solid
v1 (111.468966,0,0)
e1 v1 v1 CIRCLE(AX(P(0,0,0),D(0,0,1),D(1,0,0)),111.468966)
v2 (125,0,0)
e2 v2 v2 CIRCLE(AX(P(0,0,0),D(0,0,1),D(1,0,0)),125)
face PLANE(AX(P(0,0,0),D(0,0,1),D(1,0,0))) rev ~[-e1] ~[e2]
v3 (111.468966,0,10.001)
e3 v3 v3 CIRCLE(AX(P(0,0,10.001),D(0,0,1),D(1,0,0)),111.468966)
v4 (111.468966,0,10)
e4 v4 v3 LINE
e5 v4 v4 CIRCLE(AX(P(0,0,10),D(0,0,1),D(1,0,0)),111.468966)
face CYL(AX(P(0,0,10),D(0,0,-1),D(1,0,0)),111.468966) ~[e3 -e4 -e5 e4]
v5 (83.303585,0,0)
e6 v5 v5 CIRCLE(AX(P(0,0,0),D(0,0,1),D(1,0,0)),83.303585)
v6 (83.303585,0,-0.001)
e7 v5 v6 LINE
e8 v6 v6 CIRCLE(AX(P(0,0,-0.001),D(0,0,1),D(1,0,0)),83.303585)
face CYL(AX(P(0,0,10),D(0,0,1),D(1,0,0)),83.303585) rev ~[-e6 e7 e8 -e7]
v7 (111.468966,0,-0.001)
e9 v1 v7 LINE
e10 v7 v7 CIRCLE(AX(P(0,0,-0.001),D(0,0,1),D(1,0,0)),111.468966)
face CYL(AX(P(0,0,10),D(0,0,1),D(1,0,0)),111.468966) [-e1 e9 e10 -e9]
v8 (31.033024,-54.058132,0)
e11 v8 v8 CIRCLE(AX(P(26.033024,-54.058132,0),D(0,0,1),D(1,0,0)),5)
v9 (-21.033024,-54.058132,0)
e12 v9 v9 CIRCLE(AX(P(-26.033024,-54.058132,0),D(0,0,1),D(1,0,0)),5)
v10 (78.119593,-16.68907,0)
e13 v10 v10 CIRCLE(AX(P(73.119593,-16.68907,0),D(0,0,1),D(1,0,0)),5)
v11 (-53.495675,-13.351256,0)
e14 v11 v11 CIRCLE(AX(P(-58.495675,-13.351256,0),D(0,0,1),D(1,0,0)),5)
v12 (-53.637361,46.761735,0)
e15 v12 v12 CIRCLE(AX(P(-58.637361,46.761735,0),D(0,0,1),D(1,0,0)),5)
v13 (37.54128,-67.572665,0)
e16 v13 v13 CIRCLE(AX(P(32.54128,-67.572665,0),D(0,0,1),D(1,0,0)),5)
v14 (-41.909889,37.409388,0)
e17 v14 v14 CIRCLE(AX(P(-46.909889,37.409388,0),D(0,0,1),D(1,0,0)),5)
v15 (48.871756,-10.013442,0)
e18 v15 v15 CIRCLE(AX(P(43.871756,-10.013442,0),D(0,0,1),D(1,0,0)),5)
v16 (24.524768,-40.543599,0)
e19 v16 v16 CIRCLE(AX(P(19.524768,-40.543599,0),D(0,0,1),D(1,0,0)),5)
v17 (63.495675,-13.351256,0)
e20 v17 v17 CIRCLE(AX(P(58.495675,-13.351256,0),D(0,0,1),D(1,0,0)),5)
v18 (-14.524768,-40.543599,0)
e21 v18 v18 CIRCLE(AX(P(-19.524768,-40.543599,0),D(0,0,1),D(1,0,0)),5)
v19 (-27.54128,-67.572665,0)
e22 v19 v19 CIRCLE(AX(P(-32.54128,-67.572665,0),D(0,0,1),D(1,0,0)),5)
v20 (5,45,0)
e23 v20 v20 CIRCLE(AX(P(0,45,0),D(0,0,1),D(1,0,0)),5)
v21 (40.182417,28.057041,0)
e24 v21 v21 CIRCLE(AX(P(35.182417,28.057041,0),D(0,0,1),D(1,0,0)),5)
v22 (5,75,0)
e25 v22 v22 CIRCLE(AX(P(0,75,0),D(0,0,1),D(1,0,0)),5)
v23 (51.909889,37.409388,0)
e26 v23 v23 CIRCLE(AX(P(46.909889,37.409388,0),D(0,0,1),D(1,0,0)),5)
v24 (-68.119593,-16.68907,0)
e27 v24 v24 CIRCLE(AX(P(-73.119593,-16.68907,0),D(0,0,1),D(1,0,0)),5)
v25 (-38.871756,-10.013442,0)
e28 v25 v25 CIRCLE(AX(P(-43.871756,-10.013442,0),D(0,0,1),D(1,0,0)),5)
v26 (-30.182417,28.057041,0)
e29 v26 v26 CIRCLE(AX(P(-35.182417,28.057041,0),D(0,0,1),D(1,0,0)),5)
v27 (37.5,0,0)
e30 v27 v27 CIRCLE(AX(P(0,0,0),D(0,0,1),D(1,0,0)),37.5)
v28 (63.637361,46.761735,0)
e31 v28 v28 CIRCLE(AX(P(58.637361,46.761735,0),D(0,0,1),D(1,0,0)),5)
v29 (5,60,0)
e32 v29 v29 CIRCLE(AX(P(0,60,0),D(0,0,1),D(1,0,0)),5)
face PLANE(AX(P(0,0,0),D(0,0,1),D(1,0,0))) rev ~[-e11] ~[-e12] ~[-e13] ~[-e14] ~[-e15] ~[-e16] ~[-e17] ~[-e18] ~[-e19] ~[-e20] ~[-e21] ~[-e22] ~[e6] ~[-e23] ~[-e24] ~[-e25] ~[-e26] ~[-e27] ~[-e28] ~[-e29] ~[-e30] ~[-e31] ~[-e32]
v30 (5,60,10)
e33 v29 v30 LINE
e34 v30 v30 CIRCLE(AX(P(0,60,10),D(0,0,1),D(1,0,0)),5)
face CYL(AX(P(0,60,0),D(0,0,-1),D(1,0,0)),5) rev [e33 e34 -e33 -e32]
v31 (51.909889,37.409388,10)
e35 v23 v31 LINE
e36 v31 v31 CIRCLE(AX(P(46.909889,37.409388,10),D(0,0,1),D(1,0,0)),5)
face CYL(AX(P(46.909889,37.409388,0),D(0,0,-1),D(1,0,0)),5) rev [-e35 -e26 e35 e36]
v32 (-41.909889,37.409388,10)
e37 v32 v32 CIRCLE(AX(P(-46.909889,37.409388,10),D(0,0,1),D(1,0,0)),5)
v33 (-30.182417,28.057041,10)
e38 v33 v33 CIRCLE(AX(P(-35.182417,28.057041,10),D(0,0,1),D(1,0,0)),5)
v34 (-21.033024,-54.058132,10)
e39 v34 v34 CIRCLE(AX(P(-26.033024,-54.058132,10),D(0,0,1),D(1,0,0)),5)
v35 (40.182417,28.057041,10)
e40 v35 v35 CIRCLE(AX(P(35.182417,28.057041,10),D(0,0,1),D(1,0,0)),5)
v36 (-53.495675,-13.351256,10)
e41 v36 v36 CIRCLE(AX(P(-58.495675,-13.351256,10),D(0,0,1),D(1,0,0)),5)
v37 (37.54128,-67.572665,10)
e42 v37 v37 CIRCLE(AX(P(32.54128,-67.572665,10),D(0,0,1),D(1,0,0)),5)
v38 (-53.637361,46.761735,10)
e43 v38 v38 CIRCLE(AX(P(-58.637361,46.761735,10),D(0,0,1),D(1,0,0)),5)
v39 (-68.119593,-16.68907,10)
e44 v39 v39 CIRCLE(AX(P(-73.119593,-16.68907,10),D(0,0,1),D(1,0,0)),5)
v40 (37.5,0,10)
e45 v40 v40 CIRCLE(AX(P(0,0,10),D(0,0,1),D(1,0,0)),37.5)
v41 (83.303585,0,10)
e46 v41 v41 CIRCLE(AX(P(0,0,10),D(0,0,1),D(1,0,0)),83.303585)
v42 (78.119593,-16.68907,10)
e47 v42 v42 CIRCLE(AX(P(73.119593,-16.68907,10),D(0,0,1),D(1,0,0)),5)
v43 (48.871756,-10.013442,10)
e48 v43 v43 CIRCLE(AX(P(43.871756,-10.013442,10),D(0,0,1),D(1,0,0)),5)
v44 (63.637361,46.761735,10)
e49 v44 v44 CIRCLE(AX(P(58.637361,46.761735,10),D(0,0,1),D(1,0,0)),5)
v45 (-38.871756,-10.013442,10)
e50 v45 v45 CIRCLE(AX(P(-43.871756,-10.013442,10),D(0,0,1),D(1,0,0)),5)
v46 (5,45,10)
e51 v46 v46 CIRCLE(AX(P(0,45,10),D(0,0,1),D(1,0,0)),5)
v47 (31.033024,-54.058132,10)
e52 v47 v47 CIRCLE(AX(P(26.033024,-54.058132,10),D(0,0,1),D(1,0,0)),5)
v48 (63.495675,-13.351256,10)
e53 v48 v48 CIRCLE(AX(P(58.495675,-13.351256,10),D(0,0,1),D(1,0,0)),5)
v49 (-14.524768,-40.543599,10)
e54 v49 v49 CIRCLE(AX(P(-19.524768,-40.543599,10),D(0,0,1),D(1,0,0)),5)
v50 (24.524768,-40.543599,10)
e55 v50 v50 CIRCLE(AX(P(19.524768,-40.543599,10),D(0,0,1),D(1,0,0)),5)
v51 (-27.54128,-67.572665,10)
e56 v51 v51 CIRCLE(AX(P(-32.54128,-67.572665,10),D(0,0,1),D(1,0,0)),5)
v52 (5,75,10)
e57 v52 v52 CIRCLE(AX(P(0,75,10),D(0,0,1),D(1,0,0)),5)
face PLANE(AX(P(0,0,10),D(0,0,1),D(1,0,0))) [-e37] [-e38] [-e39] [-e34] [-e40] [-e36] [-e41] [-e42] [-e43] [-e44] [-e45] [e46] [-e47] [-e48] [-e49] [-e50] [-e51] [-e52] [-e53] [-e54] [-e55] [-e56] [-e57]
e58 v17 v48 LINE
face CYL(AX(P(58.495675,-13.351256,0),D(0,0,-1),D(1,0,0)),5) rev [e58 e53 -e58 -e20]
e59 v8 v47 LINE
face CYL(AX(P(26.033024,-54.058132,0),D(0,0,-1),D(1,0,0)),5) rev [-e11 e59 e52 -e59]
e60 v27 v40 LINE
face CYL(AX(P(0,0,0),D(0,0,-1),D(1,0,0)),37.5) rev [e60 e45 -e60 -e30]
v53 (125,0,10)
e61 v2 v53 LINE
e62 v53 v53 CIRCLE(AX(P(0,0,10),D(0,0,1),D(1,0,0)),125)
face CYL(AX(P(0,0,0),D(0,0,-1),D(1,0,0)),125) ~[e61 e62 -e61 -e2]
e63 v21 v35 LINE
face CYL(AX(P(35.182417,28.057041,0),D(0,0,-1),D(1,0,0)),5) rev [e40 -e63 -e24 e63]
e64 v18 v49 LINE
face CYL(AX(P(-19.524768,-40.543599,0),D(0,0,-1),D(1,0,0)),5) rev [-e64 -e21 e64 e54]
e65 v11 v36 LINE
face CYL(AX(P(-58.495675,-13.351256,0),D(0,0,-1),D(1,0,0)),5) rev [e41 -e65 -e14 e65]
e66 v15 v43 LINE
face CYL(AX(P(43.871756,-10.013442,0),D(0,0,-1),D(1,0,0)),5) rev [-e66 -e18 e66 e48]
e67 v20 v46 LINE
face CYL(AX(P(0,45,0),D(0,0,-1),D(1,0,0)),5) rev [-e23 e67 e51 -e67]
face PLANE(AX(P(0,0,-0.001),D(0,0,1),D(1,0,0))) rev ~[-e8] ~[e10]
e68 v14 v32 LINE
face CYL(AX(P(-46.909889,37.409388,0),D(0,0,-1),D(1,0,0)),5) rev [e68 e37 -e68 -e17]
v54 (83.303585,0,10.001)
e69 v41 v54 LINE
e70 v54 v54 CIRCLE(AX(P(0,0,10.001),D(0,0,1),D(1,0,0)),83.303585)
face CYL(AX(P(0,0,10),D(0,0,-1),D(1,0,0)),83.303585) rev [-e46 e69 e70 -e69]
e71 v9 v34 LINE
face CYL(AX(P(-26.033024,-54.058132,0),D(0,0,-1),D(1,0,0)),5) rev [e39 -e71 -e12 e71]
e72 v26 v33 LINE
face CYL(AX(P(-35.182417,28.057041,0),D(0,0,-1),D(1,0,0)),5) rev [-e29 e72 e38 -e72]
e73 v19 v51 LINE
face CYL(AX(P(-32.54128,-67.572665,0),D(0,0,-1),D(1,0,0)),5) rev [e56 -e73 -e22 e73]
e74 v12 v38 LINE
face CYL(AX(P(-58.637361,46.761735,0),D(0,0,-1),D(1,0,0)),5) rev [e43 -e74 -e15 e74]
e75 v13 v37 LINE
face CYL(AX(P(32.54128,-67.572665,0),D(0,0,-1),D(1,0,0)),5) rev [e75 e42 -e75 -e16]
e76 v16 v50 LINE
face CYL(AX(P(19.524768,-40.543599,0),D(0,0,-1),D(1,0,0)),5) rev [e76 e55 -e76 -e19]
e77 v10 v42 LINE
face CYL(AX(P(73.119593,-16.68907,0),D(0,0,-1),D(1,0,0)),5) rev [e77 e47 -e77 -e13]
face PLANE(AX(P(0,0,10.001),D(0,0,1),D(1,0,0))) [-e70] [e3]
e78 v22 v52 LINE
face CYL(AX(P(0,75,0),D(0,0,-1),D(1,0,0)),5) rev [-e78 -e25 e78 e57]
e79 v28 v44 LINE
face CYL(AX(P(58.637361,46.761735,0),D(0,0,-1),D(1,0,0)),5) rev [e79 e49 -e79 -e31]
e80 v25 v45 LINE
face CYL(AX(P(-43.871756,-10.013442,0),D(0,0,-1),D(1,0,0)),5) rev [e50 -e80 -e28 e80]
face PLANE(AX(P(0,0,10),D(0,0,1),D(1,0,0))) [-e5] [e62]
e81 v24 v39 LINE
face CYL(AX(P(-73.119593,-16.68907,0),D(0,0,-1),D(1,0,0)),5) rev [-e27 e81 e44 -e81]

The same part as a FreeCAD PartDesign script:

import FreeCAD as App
import Part
import Sketcher

doc = App.newDocument("Part")
params = doc.addObject("Spreadsheet::Sheet", "Params")
for row, (alias, value) in enumerate([
    ("sketch1_diameter", "250 mm"),
    ("sketch1_diameter2", "10 mm"),
    ("sketch1_diameter3", "75 mm"),
    ("pad1_length", "10 mm"),
    ("pad2_length", "10.001 mm"),
    ("pad3_length", "0.001 mm"),
], start=1):
    params.set(f"A{row}", alias)
    params.set(f"B{row}", "=" + value)
    params.setAlias(f"B{row}", alias)

body = doc.addObject("PartDesign::Body", "Body")

# Sketch on XY plane
sketch1 = body.newObject("Sketcher::SketchObject", "Sketch")
sketch1.AttachmentSupport = (doc.getObject("XY_Plane"), [""])
sketch1.MapMode = "FlatFace"
sketch1.addGeometry(Part.Circle(App.Vector(0, 0, 0), App.Vector(0, 0, 1), 125), False)
sketch1.addGeometry(Part.Circle(App.Vector(-46, -95, 0), App.Vector(0, 0, 1), 5), False)
sketch1.addGeometry(Part.Circle(App.Vector(-39, -81, 0), App.Vector(0, 0, 1), 5), False)
sketch1.addGeometry(Part.Circle(App.Vector(-33, -68, 0), App.Vector(0, 0, 1), 5), False)
sketch1.addGeometry(Part.Circle(App.Vector(-26, -54, 0), App.Vector(0, 0, 1), 5), False)
sketch1.addGeometry(Part.Circle(App.Vector(-102, -23, 0), App.Vector(0, 0, 1), 5), False)
sketch1.addGeometry(Part.Circle(App.Vector(-88, -20, 0), App.Vector(0, 0, 1), 5), False)
sketch1.addGeometry(Part.Circle(App.Vector(-73, -17, 0), App.Vector(0, 0, 1), 5), False)
sketch1.addGeometry(Part.Circle(App.Vector(-58, -13, 0), App.Vector(0, 0, 1), 5), False)
sketch1.addGeometry(Part.Circle(App.Vector(-20, -41, 0), App.Vector(0, 0, 1), 5), False)
sketch1.addGeometry(Part.Circle(App.Vector(-44, -10, 0), App.Vector(0, 0, 1), 5), False)
sketch1.addGeometry(Part.Circle(App.Vector(46, -95, 0), App.Vector(0, 0, 1), 5), False)
sketch1.addGeometry(Part.Circle(App.Vector(39, -81, 0), App.Vector(0, 0, 1), 5), False)
sketch1.addGeometry(Part.Circle(App.Vector(26, -54, 0), App.Vector(0, 0, 1), 5), False)
sketch1.addGeometry(Part.Circle(App.Vector(33, -68, 0), App.Vector(0, 0, 1), 5), False)
sketch1.addGeometry(Part.Circle(App.Vector(20, -41, 0), App.Vector(0, 0, 1), 5), False)
sketch1.addGeometry(Part.Circle(App.Vector(0, 0, 0), App.Vector(0, 0, 1), 38), False)
sketch1.addGeometry(Part.Circle(App.Vector(44, -10, 0), App.Vector(0, 0, 1), 5), False)
sketch1.addGeometry(Part.Circle(App.Vector(102, -23, 0), App.Vector(0, 0, 1), 5), False)
sketch1.addGeometry(Part.Circle(App.Vector(58, -13, 0), App.Vector(0, 0, 1), 5), False)
sketch1.addGeometry(Part.Circle(App.Vector(73, -17, 0), App.Vector(0, 0, 1), 5), False)
sketch1.addGeometry(Part.Circle(App.Vector(88, -20, 0), App.Vector(0, 0, 1), 5), False)
sketch1.addGeometry(Part.Circle(App.Vector(-70, 56, 0), App.Vector(0, 0, 1), 5), False)
sketch1.addGeometry(Part.Circle(App.Vector(-59, 47, 0), App.Vector(0, 0, 1), 5), False)
sketch1.addGeometry(Part.Circle(App.Vector(-35, 28, 0), App.Vector(0, 0, 1), 5), False)
sketch1.addGeometry(Part.Circle(App.Vector(-47, 37, 0), App.Vector(0, 0, 1), 5), False)
sketch1.addGeometry(Part.Circle(App.Vector(-82, 65, 0), App.Vector(0, 0, 1), 5), False)
sketch1.addGeometry(Part.Circle(App.Vector(35, 28, 0), App.Vector(0, 0, 1), 5), False)
sketch1.addGeometry(Part.Circle(App.Vector(0, 45, 0), App.Vector(0, 0, 1), 5), False)
sketch1.addGeometry(Part.Circle(App.Vector(47, 37, 0), App.Vector(0, 0, 1), 5), False)
sketch1.addGeometry(Part.Circle(App.Vector(59, 47, 0), App.Vector(0, 0, 1), 5), False)
sketch1.addGeometry(Part.Circle(App.Vector(70, 56, 0), App.Vector(0, 0, 1), 5), False)
sketch1.addGeometry(Part.Circle(App.Vector(0, 60, 0), App.Vector(0, 0, 1), 5), False)
sketch1.addGeometry(Part.Circle(App.Vector(0, 75, 0), App.Vector(0, 0, 1), 5), False)
sketch1.addGeometry(Part.Circle(App.Vector(0, 90, 0), App.Vector(0, 0, 1), 5), False)
sketch1.addGeometry(Part.Circle(App.Vector(0, 105, 0), App.Vector(0, 0, 1), 5), False)
sketch1.addGeometry(Part.Circle(App.Vector(82, 65, 0), App.Vector(0, 0, 1), 5), False)
sketch1.addConstraint(Sketcher.Constraint("Coincident", 0, 3, -1, 1))
sketch1.addConstraint(Sketcher.Constraint("Coincident", 16, 3, -1, 1))
sketch1.addConstraint(Sketcher.Constraint("Equal", 1, 2))
sketch1.addConstraint(Sketcher.Constraint("Equal", 2, 3))
sketch1.addConstraint(Sketcher.Constraint("Equal", 3, 4))
sketch1.addConstraint(Sketcher.Constraint("Equal", 4, 5))
sketch1.addConstraint(Sketcher.Constraint("Equal", 5, 6))
sketch1.addConstraint(Sketcher.Constraint("Equal", 6, 7))
sketch1.addConstraint(Sketcher.Constraint("Equal", 7, 8))
sketch1.addConstraint(Sketcher.Constraint("Equal", 8, 9))
sketch1.addConstraint(Sketcher.Constraint("Equal", 9, 10))
sketch1.addConstraint(Sketcher.Constraint("Equal", 10, 11))
sketch1.addConstraint(Sketcher.Constraint("Equal", 11, 12))
sketch1.addConstraint(Sketcher.Constraint("Equal", 12, 13))
sketch1.addConstraint(Sketcher.Constraint("Equal", 13, 14))
sketch1.addConstraint(Sketcher.Constraint("Equal", 14, 15))
sketch1.addConstraint(Sketcher.Constraint("Equal", 15, 17))
sketch1.addConstraint(Sketcher.Constraint("Equal", 17, 18))
sketch1.addConstraint(Sketcher.Constraint("Equal", 18, 19))
sketch1.addConstraint(Sketcher.Constraint("Equal", 19, 20))
sketch1.addConstraint(Sketcher.Constraint("Equal", 20, 21))
sketch1.addConstraint(Sketcher.Constraint("Equal", 21, 22))
sketch1.addConstraint(Sketcher.Constraint("Equal", 22, 23))
sketch1.addConstraint(Sketcher.Constraint("Equal", 23, 24))
sketch1.addConstraint(Sketcher.Constraint("Equal", 24, 25))
sketch1.addConstraint(Sketcher.Constraint("Equal", 25, 26))
sketch1.addConstraint(Sketcher.Constraint("Equal", 26, 27))
sketch1.addConstraint(Sketcher.Constraint("Equal", 27, 28))
sketch1.addConstraint(Sketcher.Constraint("Equal", 28, 29))
sketch1.addConstraint(Sketcher.Constraint("Equal", 29, 30))
sketch1.addConstraint(Sketcher.Constraint("Equal", 30, 31))
sketch1.addConstraint(Sketcher.Constraint("Equal", 31, 32))
sketch1.addConstraint(Sketcher.Constraint("Equal", 32, 33))
sketch1.addConstraint(Sketcher.Constraint("Equal", 33, 34))
sketch1.addConstraint(Sketcher.Constraint("Equal", 34, 35))
sketch1.addConstraint(Sketcher.Constraint("Equal", 35, 36))
sketch1.addConstraint(Sketcher.Constraint("Symmetric", 1, 3, 11, 3, -2))
sketch1.addConstraint(Sketcher.Constraint("Symmetric", 2, 3, 12, 3, -2))
sketch1.addConstraint(Sketcher.Constraint("Symmetric", 4, 3, 13, 3, -2))
sketch1.addConstraint(Sketcher.Constraint("Symmetric", 3, 3, 14, 3, -2))
sketch1.addConstraint(Sketcher.Constraint("Symmetric", 9, 3, 15, 3, -2))
sketch1.addConstraint(Sketcher.Constraint("Symmetric", 10, 3, 17, 3, -2))
sketch1.addConstraint(Sketcher.Constraint("Symmetric", 5, 3, 18, 3, -2))
sketch1.addConstraint(Sketcher.Constraint("Symmetric", 8, 3, 19, 3, -2))
sketch1.addConstraint(Sketcher.Constraint("Symmetric", 7, 3, 20, 3, -2))
sketch1.addConstraint(Sketcher.Constraint("Symmetric", 6, 3, 21, 3, -2))
sketch1.addConstraint(Sketcher.Constraint("Symmetric", 24, 3, 27, 3, -2))
sketch1.addConstraint(Sketcher.Constraint("Symmetric", 25, 3, 29, 3, -2))
sketch1.addConstraint(Sketcher.Constraint("Symmetric", 23, 3, 30, 3, -2))
sketch1.addConstraint(Sketcher.Constraint("Symmetric", 22, 3, 31, 3, -2))
sketch1.addConstraint(Sketcher.Constraint("Symmetric", 26, 3, 36, 3, -2))
sketch1.addConstraint(Sketcher.Constraint("PointOnObject", 28, 3, -2))
sketch1.addConstraint(Sketcher.Constraint("PointOnObject", 32, 3, -2))
sketch1.addConstraint(Sketcher.Constraint("PointOnObject", 33, 3, -2))
sketch1.addConstraint(Sketcher.Constraint("PointOnObject", 34, 3, -2))
sketch1.addConstraint(Sketcher.Constraint("PointOnObject", 35, 3, -2))
sketch1.addConstraint(Sketcher.Constraint("Diameter", 0, 250.0))
sketch1.addConstraint(Sketcher.Constraint("Diameter", 1, 10.0))
sketch1.addConstraint(Sketcher.Constraint("Diameter", 16, 75.0))
sketch1.addConstraint(Sketcher.Constraint("DistanceY", -1, 1, 28, 3, 45.0))
sketch1.addConstraint(Sketcher.Constraint("DistanceY", -1, 1, 32, 3, 60.0))
sketch1.addConstraint(Sketcher.Constraint("DistanceY", -1, 1, 33, 3, 75.0))
sketch1.addConstraint(Sketcher.Constraint("DistanceY", -1, 1, 34, 3, 90.0))
sketch1.addConstraint(Sketcher.Constraint("DistanceY", -1, 1, 35, 3, 105.0))
sketch1.addConstraint(Sketcher.Constraint("DistanceY", 2, 3, -1, 1, 81.087198))
sketch1.addConstraint(Sketcher.Constraint("DistanceY", 5, 3, -1, 1, 23.364698))
sketch1.addConstraint(Sketcher.Constraint("DistanceY", 9, 3, -1, 1, 40.543599))
sketch1.addConstraint(Sketcher.Constraint("DistanceY", 1, 3, 4, 3, 40.543599))
sketch1.addConstraint(Sketcher.Constraint("DistanceY", 1, 3, -1, 1, 94.601731))
sketch1.addConstraint(Sketcher.Constraint("DistanceX", 3, 3, -1, 1, 32.54128))
sketch1.addConstraint(Sketcher.Constraint("DistanceX", 5, 3, -1, 1, 102.367431))
sketch1.addConstraint(Sketcher.Constraint("DistanceY", 7, 3, -1, 1, 16.68907))
sketch1.addConstraint(Sketcher.Constraint("DistanceX", 9, 3, -1, 1, 19.524768))
sketch1.addConstraint(Sketcher.Constraint("DistanceX", 23, 3, -1, 1, 58.637361))
sketch1.addConstraint(Sketcher.Constraint("DistanceY", -1, 1, 24, 3, 28.057041))
sketch1.addConstraint(Sketcher.Constraint("DistanceX", 25, 3, -1, 1, 46.909889))
sketch1.addConstraint(Sketcher.Constraint("DistanceY", -1, 1, 25, 3, 37.409388))
sketch1.addConstraint(Sketcher.Constraint("DistanceY", -1, 1, 26, 3, 65.466429))
sketch1.addConstraint(Sketcher.Constraint("DistanceX", 1, 3, 4, 3, 19.524768))
sketch1.addConstraint(Sketcher.Constraint("DistanceX", 5, 3, 1, 3, 56.809638))
sketch1.addConstraint(Sketcher.Constraint("DistanceX", 5, 3, 6, 3, 14.623919))
sketch1.addConstraint(Sketcher.Constraint("DistanceY", 4, 3, 6, 3, 34.031248))
sketch1.addConstraint(Sketcher.Constraint("DistanceY", 3, 3, 6, 3, 47.545781))
sketch1.addConstraint(Sketcher.Constraint("DistanceX", 6, 3, 7, 3, 14.623919))
sketch1.addConstraint(Sketcher.Constraint("DistanceX", 7, 3, 8, 3, 14.623919))
sketch1.addConstraint(Sketcher.Constraint("DistanceY", 6, 3, 8, 3, 6.675628))
sketch1.addConstraint(Sketcher.Constraint("DistanceX", 2, 3, 9, 3, 19.524768))
sketch1.addConstraint(Sketcher.Constraint("DistanceX", 8, 3, 10, 3, 14.623919))
sketch1.addConstraint(Sketcher.Constraint("DistanceY", 7, 3, 10, 3, 6.675628))
sketch1.addConstraint(Sketcher.Constraint("DistanceX", 22, 3, 8, 3, 11.869159))
sketch1.addConstraint(Sketcher.Constraint("DistanceY", 8, 3, 22, 3, 69.465338))
sketch1.addConstraint(Sketcher.Constraint("DistanceY", 8, 3, 23, 3, 60.112991))
sketch1.addConstraint(Sketcher.Constraint("DistanceX", 10, 3, 24, 3, 8.689339))
sketch1.addConstraint(Sketcher.Constraint("DistanceX", 26, 3, 24, 3, 46.909889))
sketch1.setExpression("Constraints[56]", "Params.sketch1_diameter")
sketch1.setExpression("Constraints[57]", "Params.sketch1_diameter2")
sketch1.setExpression("Constraints[58]", "Params.sketch1_diameter3")
pad1 = body.newObject("PartDesign::Pad", "Pad")
pad1.Profile = sketch1
pad1.setExpression("Length", "Params.pad1_length")

# Sketch on XY plane
sketch2 = body.newObject("Sketcher::SketchObject", "Sketch001")
sketch2.AttachmentSupport = (doc.getObject("XY_Plane"), [""])
sketch2.MapMode = "FlatFace"
sketch2.AttachmentOffset = App.Placement(App.Vector(0, 0, 10), App.Rotation())
sketch2.addGeometry(Part.Circle(App.Vector(0, 0, 0), App.Vector(0, 0, 1), 111), False)
sketch2.addGeometry(Part.Circle(App.Vector(0, 0, 0), App.Vector(0, 0, 1), 83), False)
sketch2.addConstraint(Sketcher.Constraint("Coincident", 0, 3, -1, 1))
sketch2.addConstraint(Sketcher.Constraint("Coincident", 1, 3, -1, 1))
sketch2.addConstraint(Sketcher.Constraint("Diameter", 0, 222.937932))
sketch2.addConstraint(Sketcher.Constraint("Diameter", 1, 166.60717))
pad2 = body.newObject("PartDesign::Pad", "Pad001")
pad2.Profile = sketch2
pad2.setExpression("Length", "Params.pad2_length")
pad2.Reversed = True

# Sketch on XY plane
sketch3 = body.newObject("Sketcher::SketchObject", "Sketch002")
sketch3.AttachmentSupport = (doc.getObject("XY_Plane"), [""])
sketch3.MapMode = "FlatFace"
sketch3.AttachmentOffset = App.Placement(App.Vector(0, 0, 10), App.Rotation())
sketch3.addGeometry(Part.Circle(App.Vector(0, 0, 0), App.Vector(0, 0, 1), 111), False)
sketch3.addGeometry(Part.Circle(App.Vector(0, 0, 0), App.Vector(0, 0, 1), 83), False)
sketch3.addConstraint(Sketcher.Constraint("Coincident", 0, 3, -1, 1))
sketch3.addConstraint(Sketcher.Constraint("Coincident", 1, 3, -1, 1))
sketch3.addConstraint(Sketcher.Constraint("Diameter", 0, 222.937932))
sketch3.addConstraint(Sketcher.Constraint("Diameter", 1, 166.60717))
pad3 = body.newObject("PartDesign::Pad", "Pad002")
pad3.Profile = sketch3
pad3.setExpression("Length", "Params.pad3_length")

doc.recompute()
